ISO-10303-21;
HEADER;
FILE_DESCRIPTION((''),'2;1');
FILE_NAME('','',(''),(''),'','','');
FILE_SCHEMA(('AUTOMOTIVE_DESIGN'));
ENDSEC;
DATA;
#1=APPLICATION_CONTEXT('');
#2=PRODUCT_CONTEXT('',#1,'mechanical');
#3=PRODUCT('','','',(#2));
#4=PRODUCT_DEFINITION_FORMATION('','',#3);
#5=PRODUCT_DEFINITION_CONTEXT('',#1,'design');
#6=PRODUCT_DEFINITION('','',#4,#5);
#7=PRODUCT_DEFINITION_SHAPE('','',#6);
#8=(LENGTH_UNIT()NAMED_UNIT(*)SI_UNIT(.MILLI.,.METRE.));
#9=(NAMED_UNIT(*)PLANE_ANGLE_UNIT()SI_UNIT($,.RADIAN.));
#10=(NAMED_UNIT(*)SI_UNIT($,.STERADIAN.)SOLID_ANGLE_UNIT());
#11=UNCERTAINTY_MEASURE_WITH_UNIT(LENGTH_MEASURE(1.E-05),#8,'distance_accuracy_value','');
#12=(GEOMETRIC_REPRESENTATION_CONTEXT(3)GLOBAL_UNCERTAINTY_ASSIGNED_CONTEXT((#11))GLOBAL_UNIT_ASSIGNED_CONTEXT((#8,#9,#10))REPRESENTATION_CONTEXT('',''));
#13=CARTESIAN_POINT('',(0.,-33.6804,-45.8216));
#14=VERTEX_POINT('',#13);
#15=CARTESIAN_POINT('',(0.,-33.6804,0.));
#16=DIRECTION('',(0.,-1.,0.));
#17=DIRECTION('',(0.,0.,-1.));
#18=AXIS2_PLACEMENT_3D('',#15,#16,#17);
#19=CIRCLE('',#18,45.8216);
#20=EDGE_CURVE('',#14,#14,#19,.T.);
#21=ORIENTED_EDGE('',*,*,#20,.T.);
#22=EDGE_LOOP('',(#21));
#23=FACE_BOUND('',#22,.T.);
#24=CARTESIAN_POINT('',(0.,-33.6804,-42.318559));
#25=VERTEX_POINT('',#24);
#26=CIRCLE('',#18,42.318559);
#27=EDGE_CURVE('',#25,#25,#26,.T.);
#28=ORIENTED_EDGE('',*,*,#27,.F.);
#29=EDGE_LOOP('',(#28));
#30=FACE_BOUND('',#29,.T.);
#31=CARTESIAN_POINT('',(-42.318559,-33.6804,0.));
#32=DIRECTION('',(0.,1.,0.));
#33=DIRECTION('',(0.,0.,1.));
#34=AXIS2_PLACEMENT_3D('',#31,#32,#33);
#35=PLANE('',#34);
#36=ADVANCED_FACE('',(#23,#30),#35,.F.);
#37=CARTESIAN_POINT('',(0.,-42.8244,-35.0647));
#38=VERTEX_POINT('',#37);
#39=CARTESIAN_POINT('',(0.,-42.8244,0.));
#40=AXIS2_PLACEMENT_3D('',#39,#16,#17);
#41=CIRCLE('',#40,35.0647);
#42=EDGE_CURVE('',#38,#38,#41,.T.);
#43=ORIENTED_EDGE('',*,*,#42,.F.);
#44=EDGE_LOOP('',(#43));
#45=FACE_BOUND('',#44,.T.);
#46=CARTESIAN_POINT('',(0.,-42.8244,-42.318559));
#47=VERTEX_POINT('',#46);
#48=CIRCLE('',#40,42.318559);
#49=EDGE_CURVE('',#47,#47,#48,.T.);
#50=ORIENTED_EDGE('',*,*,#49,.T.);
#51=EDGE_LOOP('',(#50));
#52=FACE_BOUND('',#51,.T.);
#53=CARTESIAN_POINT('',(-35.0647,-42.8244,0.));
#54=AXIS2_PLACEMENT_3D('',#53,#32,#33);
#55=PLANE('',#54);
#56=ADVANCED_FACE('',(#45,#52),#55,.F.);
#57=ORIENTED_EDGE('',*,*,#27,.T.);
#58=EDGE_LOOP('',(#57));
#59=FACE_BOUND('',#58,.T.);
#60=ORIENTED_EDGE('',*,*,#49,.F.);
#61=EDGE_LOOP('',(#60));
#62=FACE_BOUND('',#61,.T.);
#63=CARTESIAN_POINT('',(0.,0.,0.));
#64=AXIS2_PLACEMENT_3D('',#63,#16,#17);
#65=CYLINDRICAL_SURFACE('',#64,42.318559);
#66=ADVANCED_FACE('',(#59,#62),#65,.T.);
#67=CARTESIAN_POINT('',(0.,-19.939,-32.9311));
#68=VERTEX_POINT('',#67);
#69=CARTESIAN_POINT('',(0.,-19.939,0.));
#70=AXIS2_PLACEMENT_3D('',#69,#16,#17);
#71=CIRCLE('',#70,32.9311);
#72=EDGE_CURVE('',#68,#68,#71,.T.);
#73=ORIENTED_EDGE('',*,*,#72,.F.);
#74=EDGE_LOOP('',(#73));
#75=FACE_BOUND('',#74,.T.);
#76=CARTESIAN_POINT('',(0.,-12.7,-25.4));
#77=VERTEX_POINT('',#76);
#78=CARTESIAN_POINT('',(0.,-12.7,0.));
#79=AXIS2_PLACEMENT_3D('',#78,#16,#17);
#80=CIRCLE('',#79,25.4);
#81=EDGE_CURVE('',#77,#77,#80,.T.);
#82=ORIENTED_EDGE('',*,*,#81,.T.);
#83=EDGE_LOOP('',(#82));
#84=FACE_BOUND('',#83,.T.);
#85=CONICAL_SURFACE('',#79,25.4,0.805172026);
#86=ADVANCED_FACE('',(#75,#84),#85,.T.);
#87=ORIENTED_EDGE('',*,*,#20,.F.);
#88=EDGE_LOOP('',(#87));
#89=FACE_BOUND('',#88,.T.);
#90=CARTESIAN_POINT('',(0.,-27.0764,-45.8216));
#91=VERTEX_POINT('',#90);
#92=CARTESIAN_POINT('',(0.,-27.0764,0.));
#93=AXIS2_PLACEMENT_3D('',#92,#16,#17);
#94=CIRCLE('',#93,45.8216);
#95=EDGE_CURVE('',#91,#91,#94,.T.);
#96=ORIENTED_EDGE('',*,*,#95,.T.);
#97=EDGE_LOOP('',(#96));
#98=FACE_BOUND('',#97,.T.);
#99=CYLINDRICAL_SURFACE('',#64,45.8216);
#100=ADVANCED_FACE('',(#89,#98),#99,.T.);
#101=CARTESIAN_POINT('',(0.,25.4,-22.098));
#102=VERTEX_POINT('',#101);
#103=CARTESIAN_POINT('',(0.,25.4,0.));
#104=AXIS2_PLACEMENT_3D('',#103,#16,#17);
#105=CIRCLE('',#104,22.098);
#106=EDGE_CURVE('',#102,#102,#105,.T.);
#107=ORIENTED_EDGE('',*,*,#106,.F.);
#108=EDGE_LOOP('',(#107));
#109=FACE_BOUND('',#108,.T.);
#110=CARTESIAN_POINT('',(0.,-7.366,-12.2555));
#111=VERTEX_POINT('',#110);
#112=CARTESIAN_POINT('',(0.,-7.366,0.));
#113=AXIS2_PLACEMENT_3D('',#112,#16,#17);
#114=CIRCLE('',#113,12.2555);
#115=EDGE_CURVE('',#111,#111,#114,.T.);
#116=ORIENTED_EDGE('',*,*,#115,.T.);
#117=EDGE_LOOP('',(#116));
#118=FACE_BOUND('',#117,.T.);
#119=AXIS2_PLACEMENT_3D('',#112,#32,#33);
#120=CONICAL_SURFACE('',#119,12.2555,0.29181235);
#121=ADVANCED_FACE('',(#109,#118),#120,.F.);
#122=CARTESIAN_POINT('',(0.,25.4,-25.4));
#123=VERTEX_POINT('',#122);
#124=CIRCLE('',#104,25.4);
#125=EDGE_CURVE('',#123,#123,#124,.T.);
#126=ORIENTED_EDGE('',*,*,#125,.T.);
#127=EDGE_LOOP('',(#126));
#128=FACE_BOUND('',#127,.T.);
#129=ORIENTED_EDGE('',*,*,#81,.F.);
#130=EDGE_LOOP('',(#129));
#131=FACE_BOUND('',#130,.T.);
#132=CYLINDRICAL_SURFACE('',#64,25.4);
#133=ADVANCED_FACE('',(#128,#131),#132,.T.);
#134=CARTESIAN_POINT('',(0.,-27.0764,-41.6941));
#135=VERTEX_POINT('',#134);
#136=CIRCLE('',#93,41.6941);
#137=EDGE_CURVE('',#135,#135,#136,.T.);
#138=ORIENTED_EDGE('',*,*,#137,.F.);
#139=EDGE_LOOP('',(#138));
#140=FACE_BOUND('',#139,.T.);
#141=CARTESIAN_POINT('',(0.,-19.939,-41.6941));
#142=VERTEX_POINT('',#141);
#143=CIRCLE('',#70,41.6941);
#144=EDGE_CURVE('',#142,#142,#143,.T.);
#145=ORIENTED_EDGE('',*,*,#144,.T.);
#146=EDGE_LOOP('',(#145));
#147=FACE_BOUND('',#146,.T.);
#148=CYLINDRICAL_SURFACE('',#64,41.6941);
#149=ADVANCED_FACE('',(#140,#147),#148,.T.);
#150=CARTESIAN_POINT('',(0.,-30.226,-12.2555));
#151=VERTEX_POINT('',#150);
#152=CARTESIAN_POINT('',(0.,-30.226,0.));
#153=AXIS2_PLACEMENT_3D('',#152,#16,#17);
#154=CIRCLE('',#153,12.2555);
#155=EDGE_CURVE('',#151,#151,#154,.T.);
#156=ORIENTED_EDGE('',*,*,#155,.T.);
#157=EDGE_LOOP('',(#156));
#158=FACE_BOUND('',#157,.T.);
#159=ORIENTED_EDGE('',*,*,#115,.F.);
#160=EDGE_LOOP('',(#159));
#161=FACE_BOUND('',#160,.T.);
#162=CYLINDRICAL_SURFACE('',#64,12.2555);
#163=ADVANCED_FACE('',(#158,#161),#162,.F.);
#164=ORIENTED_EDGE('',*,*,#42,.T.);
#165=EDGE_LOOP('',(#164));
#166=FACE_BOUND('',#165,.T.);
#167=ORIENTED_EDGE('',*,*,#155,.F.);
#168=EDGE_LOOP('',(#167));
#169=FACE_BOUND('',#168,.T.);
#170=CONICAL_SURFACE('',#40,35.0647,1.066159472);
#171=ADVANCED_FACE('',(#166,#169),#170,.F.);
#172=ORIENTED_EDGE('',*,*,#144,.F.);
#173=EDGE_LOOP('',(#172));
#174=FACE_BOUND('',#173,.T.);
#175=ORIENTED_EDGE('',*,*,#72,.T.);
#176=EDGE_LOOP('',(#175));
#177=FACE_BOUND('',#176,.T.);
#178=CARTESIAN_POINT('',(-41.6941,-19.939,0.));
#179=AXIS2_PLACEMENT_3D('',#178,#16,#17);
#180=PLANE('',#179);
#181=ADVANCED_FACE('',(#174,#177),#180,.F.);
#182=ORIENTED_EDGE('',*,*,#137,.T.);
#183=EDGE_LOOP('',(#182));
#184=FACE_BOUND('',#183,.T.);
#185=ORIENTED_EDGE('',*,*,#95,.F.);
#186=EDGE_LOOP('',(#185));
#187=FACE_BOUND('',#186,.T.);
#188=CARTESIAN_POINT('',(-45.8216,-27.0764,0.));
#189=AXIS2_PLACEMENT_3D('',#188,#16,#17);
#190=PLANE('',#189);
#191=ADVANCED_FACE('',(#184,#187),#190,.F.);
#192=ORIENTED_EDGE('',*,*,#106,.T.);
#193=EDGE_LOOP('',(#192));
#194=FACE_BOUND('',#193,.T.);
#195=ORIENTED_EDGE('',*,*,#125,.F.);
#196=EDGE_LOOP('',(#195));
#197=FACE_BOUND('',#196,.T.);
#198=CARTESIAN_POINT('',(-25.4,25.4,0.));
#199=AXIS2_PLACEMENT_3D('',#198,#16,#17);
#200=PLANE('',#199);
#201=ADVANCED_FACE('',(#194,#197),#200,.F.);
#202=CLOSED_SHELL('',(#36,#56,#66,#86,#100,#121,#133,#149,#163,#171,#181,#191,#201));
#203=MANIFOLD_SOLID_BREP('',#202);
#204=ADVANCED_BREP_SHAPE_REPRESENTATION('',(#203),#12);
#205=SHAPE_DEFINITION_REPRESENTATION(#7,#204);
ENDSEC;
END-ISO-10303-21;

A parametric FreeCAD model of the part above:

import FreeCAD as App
import Part
import Sketcher
from FreeCAD import Vector
Q = App.Units.Quantity


def add_polygon(sketch, points):
    """Adds a closed chain of lines whose ends are joined by coincident constraints."""
    first, n = sketch.GeometryCount, len(points)
    for a, b in zip(points, points[1:] + points[:1]):
        sketch.addGeometry(Part.LineSegment(App.Vector(*a, 0), App.Vector(*b, 0)), False)
    for i in range(n):
        sketch.addConstraint(Sketcher.Constraint("Coincident", first + i, 2, first + (i + 1) % n, 1))

doc = App.newDocument("Part")
body = doc.addObject("PartDesign::Body", "Body")

sketch1 = doc.addObject("Sketcher::SketchObject", "Sketch")
body.addObject(sketch1)
sketch1.AttachmentSupport = (doc.XY_Plane, [""])
sketch1.MapMode = "FlatFace"
add_polygon(sketch1, [(-12.2555, -7.366), (-22.098, 25.4), (-25.4, 25.4), (-25.4, -12.7), (-32.9311, -19.939), (-41.6941, -19.939), (-41.6941, -27.0764), (-45.8216, -27.0764), (-45.8216, -33.6804), (-42.318559, -33.6804), (-42.318559, -42.8244), (-35.0647, -42.8244), (-12.2555, -30.226)])
sketch1.addConstraint(Sketcher.Constraint("Horizontal", 1))
sketch1.addConstraint(Sketcher.Constraint("Vertical", 2))
sketch1.addConstraint(Sketcher.Constraint("Horizontal", 4))
sketch1.addConstraint(Sketcher.Constraint("Vertical", 5))
sketch1.addConstraint(Sketcher.Constraint("Horizontal", 6))
sketch1.addConstraint(Sketcher.Constraint("Vertical", 7))
sketch1.addConstraint(Sketcher.Constraint("Horizontal", 8))
sketch1.addConstraint(Sketcher.Constraint("Vertical", 9))
sketch1.addConstraint(Sketcher.Constraint("Horizontal", 10))
sketch1.addConstraint(Sketcher.Constraint("Vertical", 12))
sketch1.addConstraint(Sketcher.Constraint("DistanceY", 2, 2, 2, 1, Q("1.5 in")))
sketch1.addConstraint(Sketcher.Constraint("DistanceY", 12, 1, 12, 2, Q("0.9 in")))
sketch1.addConstraint(Sketcher.Constraint("DistanceY", -1, 1, 0, 2, Q("1 in")))
sketch1.addConstraint(Sketcher.Constraint("DistanceX", 1, 2, -1, 1, Q("1 in")))
sketch1.addConstraint(Sketcher.Constraint("DistanceX", 1, 2, 1, 1, Q("0.13 in")))
sketch1.addConstraint(Sketcher.Constraint("DistanceY", 7, 2, 7, 1, Q("0.26 in")))
sketch1.addConstraint(Sketcher.Constraint("DistanceY", 9, 2, 9, 1, Q("0.36 in")))
sketch1.addConstraint(Sketcher.Constraint("DistanceX", 4, 2, 4, 1, Q("0.345 in")))
sketch1.addConstraint(Sketcher.Constraint("DistanceY", 5, 2, 5, 1, Q("0.281 in")))
sketch1.addConstraint(Sketcher.Constraint("DistanceY", 11, 2, -1, 1, Q("1.19 in")))
sketch1.addConstraint(Sketcher.Constraint("DistanceX", 6, 2, 6, 1, Q("0.1625 in")))
sketch1.addConstraint(Sketcher.Constraint("DistanceY", 3, 2, -1, 1, Q("0.785 in")))
sketch1.addConstraint(Sketcher.Constraint("DistanceX", 6, 2, -1, 1, Q("1.804 in")))
sketch1.addConstraint(Sketcher.Constraint("DistanceX", 5, 2, 10, 2, Q("0.261 in")))
sketch1.addConstraint(Sketcher.Constraint("DistanceX", 3, 2, 11, 2, Q("0.814 in")))
sketch1.addConstraint(Sketcher.Constraint("DistanceX", 8, 1, 8, 2, Q("3.503041 mm")))
revolution = doc.addObject("PartDesign::Revolution", "Revolution")
body.addObject(revolution)
revolution.Profile = sketch1
revolution.ReferenceAxis = (sketch1, ["V_Axis"])
revolution.Angle = 360

doc.recompute()
